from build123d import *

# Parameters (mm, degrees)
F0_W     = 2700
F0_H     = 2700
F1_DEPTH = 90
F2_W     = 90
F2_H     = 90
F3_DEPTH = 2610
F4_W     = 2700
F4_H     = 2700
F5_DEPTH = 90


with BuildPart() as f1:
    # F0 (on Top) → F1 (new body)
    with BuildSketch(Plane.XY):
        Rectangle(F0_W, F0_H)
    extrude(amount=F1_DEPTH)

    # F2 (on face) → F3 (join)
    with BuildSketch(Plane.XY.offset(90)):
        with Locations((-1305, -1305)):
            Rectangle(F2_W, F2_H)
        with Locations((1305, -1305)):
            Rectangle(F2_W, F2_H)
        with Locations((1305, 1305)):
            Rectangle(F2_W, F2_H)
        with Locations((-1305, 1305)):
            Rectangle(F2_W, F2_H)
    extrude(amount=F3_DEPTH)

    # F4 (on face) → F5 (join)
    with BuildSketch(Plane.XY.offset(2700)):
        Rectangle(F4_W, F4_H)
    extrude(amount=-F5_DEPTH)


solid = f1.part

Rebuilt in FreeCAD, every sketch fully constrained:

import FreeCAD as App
import Part
import Sketcher

doc = App.newDocument("Part")
body = doc.addObject("PartDesign::Body", "Body")

# Sketch on XY plane
sketch1 = doc.addObject("Sketcher::SketchObject", "Sketch")
body.addObject(sketch1)
sketch1.AttachmentSupport = (doc.XY_Plane, [""])
sketch1.MapMode = "FlatFace"
sketch1.addGeometry([
    Part.LineSegment(App.Vector(-1350, 1350, 0), App.Vector(-1350, -1350, 0)),
    Part.LineSegment(App.Vector(-1350, -1350, 0), App.Vector(1350, -1350, 0)),
    Part.LineSegment(App.Vector(1350, -1350, 0), App.Vector(1350, 1350, 0)),
    Part.LineSegment(App.Vector(1350, 1350, 0), App.Vector(-1350, 1350, 0)),
], False)
sketch1.addConstraint([
    Sketcher.Constraint("Coincident", 0, 2, 1, 1),
    Sketcher.Constraint("Coincident", 1, 2, 2, 1),
    Sketcher.Constraint("Coincident", 2, 2, 3, 1),
    Sketcher.Constraint("Coincident", 3, 2, 0, 1),
    Sketcher.Constraint("Vertical", 0),
    Sketcher.Constraint("Horizontal", 1),
    Sketcher.Constraint("Vertical", 2),
    Sketcher.Constraint("Horizontal", 3),
    Sketcher.Constraint("Symmetric", 0, 2, 2, 2, -1, 1),
    Sketcher.Constraint("Equal", 3, 0),
    Sketcher.Constraint("DistanceX", 1, 1, 1, 2, 2700.0),
])
pad1 = doc.addObject("PartDesign::Pad", "Pad")
body.addObject(pad1)
pad1.Profile = sketch1
pad1.Length = 90

# Sketch on XY plane
sketch2 = doc.addObject("Sketcher::SketchObject", "Sketch001")
body.addObject(sketch2)
sketch2.AttachmentSupport = (doc.XY_Plane, [""])
sketch2.MapMode = "FlatFace"
sketch2.AttachmentOffset = App.Placement(App.Vector(0, 0, 90), App.Rotation())
sketch2.addGeometry([
    Part.LineSegment(App.Vector(-1350, -1260, 0), App.Vector(-1350, -1350, 0)),  # 0
    Part.LineSegment(App.Vector(-1350, -1350, 0), App.Vector(-1260, -1350, 0)),  # 1
    Part.LineSegment(App.Vector(-1260, -1350, 0), App.Vector(-1260, -1260, 0)),  # 2
    Part.LineSegment(App.Vector(-1260, -1260, 0), App.Vector(-1350, -1260, 0)),  # 3
    Part.LineSegment(App.Vector(1260, -1260, 0), App.Vector(1260, -1350, 0)),  # 4
    Part.LineSegment(App.Vector(1260, -1350, 0), App.Vector(1350, -1350, 0)),  # 5
    Part.LineSegment(App.Vector(1350, -1350, 0), App.Vector(1350, -1260, 0)),  # 6
    Part.LineSegment(App.Vector(1350, -1260, 0), App.Vector(1260, -1260, 0)),  # 7
    Part.LineSegment(App.Vector(1260, 1350, 0), App.Vector(1260, 1260, 0)),  # 8
    Part.LineSegment(App.Vector(1260, 1260, 0), App.Vector(1350, 1260, 0)),  # 9
    Part.LineSegment(App.Vector(1350, 1260, 0), App.Vector(1350, 1350, 0)),  # 10
    Part.LineSegment(App.Vector(1350, 1350, 0), App.Vector(1260, 1350, 0)),  # 11
    Part.LineSegment(App.Vector(-1350, 1350, 0), App.Vector(-1350, 1260, 0)),  # 12
    Part.LineSegment(App.Vector(-1350, 1260, 0), App.Vector(-1260, 1260, 0)),  # 13
    Part.LineSegment(App.Vector(-1260, 1260, 0), App.Vector(-1260, 1350, 0)),  # 14
    Part.LineSegment(App.Vector(-1260, 1350, 0), App.Vector(-1350, 1350, 0)),  # 15
], False)
sketch2.addConstraint([
    Sketcher.Constraint("Coincident", 0, 2, 1, 1),
    Sketcher.Constraint("Coincident", 1, 2, 2, 1),
    Sketcher.Constraint("Coincident", 2, 2, 3, 1),
    Sketcher.Constraint("Coincident", 3, 2, 0, 1),
    Sketcher.Constraint("Coincident", 4, 2, 5, 1),
    Sketcher.Constraint("Coincident", 5, 2, 6, 1),
    Sketcher.Constraint("Coincident", 6, 2, 7, 1),
    Sketcher.Constraint("Coincident", 7, 2, 4, 1),
    Sketcher.Constraint("Coincident", 8, 2, 9, 1),
    Sketcher.Constraint("Coincident", 9, 2, 10, 1),
    Sketcher.Constraint("Coincident", 10, 2, 11, 1),
    Sketcher.Constraint("Coincident", 11, 2, 8, 1),
    Sketcher.Constraint("Coincident", 12, 2, 13, 1),
    Sketcher.Constraint("Coincident", 13, 2, 14, 1),
    Sketcher.Constraint("Coincident", 14, 2, 15, 1),
    Sketcher.Constraint("Coincident", 15, 2, 12, 1),
    Sketcher.Constraint("Vertical", 0),
    Sketcher.Constraint("Horizontal", 1),
    Sketcher.Constraint("Vertical", 2),
    Sketcher.Constraint("Horizontal", 3),
    Sketcher.Constraint("Vertical", 4),
    Sketcher.Constraint("Horizontal", 5),
    Sketcher.Constraint("Vertical", 6),
    Sketcher.Constraint("Horizontal", 7),
    Sketcher.Constraint("Vertical", 8),
    Sketcher.Constraint("Horizontal", 9),
    Sketcher.Constraint("Vertical", 10),
    Sketcher.Constraint("Horizontal", 11),
    Sketcher.Constraint("Vertical", 12),
    Sketcher.Constraint("Horizontal", 13),
    Sketcher.Constraint("Vertical", 14),
    Sketcher.Constraint("Horizontal", 15),
    Sketcher.Constraint("Symmetric", 2, 2, 8, 2, -1, 1),
    Sketcher.Constraint("Symmetric", 0, 2, 10, 2, -1, 1),
    Sketcher.Constraint("Symmetric", 6, 2, 12, 2, -1, 1),
    Sketcher.Constraint("Symmetric", 4, 2, 14, 2, -1, 1),
    Sketcher.Constraint("Symmetric", 1, 2, 4, 2, -2),
    Sketcher.Constraint("Symmetric", 3, 2, 6, 2, -2),
    Sketcher.Constraint("Equal", 15, 0),
    Sketcher.Constraint("DistanceX", 1, 1, 1, 2, 90.0),
    Sketcher.Constraint("DistanceX", 0, 2, -1, 1, 1350.0),
    Sketcher.Constraint("DistanceY", 0, 2, -1, 1, 1350.0),
])
pad2 = doc.addObject("PartDesign::Pad", "Pad001")
body.addObject(pad2)
pad2.Profile = sketch2
pad2.Length = 2610

# Sketch on XY plane
sketch3 = doc.addObject("Sketcher::SketchObject", "Sketch002")
body.addObject(sketch3)
sketch3.AttachmentSupport = (doc.XY_Plane, [""])
sketch3.MapMode = "FlatFace"
sketch3.AttachmentOffset = App.Placement(App.Vector(0, 0, 2700), App.Rotation())
sketch3.addGeometry([
    Part.LineSegment(App.Vector(-1350, 1350, 0), App.Vector(-1350, -1350, 0)),
    Part.LineSegment(App.Vector(-1350, -1350, 0), App.Vector(1350, -1350, 0)),
    Part.LineSegment(App.Vector(1350, -1350, 0), App.Vector(1350, 1350, 0)),
    Part.LineSegment(App.Vector(1350, 1350, 0), App.Vector(-1350, 1350, 0)),
], False)
sketch3.addConstraint([
    Sketcher.Constraint("Coincident", 0, 2, 1, 1),
    Sketcher.Constraint("Coincident", 1, 2, 2, 1),
    Sketcher.Constraint("Coincident", 2, 2, 3, 1),
    Sketcher.Constraint("Coincident", 3, 2, 0, 1),
    Sketcher.Constraint("Vertical", 0),
    Sketcher.Constraint("Horizontal", 1),
    Sketcher.Constraint("Vertical", 2),
    Sketcher.Constraint("Horizontal", 3),
    Sketcher.Constraint("Symmetric", 0, 2, 2, 2, -1, 1),
    Sketcher.Constraint("Equal", 3, 0),
    Sketcher.Constraint("DistanceX", 1, 1, 1, 2, 2700.0),
])
pad3 = doc.addObject("PartDesign::Pad", "Pad002")
body.addObject(pad3)
pad3.Profile = sketch3
pad3.Length = 90
pad3.Reversed = True

doc.recompute()
